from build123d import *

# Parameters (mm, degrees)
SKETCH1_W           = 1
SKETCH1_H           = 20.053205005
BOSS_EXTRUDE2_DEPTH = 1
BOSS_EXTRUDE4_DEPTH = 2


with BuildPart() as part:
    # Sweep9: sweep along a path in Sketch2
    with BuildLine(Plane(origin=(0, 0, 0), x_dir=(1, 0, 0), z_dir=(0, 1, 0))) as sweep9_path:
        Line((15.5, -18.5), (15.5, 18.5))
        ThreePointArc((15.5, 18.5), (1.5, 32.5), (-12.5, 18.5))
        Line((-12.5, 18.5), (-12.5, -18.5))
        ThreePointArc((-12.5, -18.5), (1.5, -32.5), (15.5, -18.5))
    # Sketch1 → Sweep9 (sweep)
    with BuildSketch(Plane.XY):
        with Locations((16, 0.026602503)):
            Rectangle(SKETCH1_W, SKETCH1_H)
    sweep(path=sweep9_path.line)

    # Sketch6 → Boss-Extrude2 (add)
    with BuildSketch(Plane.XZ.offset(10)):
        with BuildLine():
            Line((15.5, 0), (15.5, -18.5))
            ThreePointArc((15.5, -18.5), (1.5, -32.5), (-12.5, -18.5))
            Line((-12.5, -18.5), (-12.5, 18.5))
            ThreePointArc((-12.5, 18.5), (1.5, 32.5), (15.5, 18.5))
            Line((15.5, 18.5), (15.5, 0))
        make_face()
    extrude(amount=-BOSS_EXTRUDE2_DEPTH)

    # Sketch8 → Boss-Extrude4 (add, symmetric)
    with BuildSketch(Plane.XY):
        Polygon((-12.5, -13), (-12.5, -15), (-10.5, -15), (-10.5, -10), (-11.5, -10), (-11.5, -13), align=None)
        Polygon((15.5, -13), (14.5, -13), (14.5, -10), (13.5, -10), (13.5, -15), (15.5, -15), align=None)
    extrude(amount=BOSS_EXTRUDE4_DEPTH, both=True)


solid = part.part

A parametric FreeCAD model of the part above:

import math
import FreeCAD as App
import Part
import Sketcher
Q = App.Units.Quantity

doc = App.newDocument("Part")
params = doc.addObject("Spreadsheet::Sheet", "Params")
for row, (alias, value) in enumerate([
    ("sketch1_width", "1 mm"),
    ("sketch2_radius", "14 mm"),
    ("sketch2_height", "37 mm"),
    ("sketch3_radius", "14 mm"),
    ("sketch3_height", "37 mm"),
    ("pad1_length", "1 mm"),
    ("sketch4_width", "2 mm"),
    ("sketch4_height", "5 mm"),
    ("pad2_length", "4 mm"),
], start=1):
    params.set(f"A{row}", alias)
    params.set(f"B{row}", "=" + value)
    params.setAlias(f"B{row}", alias)

body = doc.addObject("PartDesign::Body", "Body")

sketch1 = body.newObject("Sketcher::SketchObject", "Sketch")
sketch1.AttachmentSupport = (doc.getObject("XY_Plane"), [""])
sketch1.MapMode = "FlatFace"
sketch1.addGeometry(Part.LineSegment(App.Vector(15.5, 10.1, 0), App.Vector(15.5, -10, 0)), False)
sketch1.addGeometry(Part.LineSegment(App.Vector(15.5, -10, 0), App.Vector(16.5, -10, 0)), False)
sketch1.addGeometry(Part.LineSegment(App.Vector(16.5, -10, 0), App.Vector(16.5, 10.1, 0)), False)
sketch1.addGeometry(Part.LineSegment(App.Vector(16.5, 10.1, 0), App.Vector(15.5, 10.1, 0)), False)
sketch1.addConstraint(Sketcher.Constraint("Coincident", 0, 2, 1, 1))
sketch1.addConstraint(Sketcher.Constraint("Coincident", 1, 2, 2, 1))
sketch1.addConstraint(Sketcher.Constraint("Coincident", 2, 2, 3, 1))
sketch1.addConstraint(Sketcher.Constraint("Coincident", 3, 2, 0, 1))
sketch1.addConstraint(Sketcher.Constraint("Vertical", 0))
sketch1.addConstraint(Sketcher.Constraint("Horizontal", 1))
sketch1.addConstraint(Sketcher.Constraint("Vertical", 2))
sketch1.addConstraint(Sketcher.Constraint("Horizontal", 3))
sketch1.addConstraint(Sketcher.Constraint("DistanceX", 1, 1, 1, 2, Q("1 mm")))
sketch1.addConstraint(Sketcher.Constraint("DistanceY", 0, 2, -1, 1, Q("10 mm")))
sketch1.addConstraint(Sketcher.Constraint("DistanceX", -1, 1, 0, 2, Q("15.5 mm")))
sketch1.addConstraint(Sketcher.Constraint("DistanceY", 0, 2, 0, 1, Q("20.053205 mm")))
sketch1.setExpression("Constraints[8]", "Params.sketch1_width")

sketch2 = body.newObject("Sketcher::SketchObject", "Sketch001")
sketch2.AttachmentSupport = (doc.getObject("XZ_Plane"), [""])
sketch2.MapMode = "FlatFace"
sketch2.addGeometry(Part.LineSegment(App.Vector(16, 18, 0), App.Vector(16, -18, 0)), False)
sketch2.addGeometry(Part.ArcOfCircle(Part.Circle(App.Vector(2, -18, 0), App.Vector(0, 0, 1), 14), math.radians(180), math.radians(360)), False)
sketch2.addGeometry(Part.LineSegment(App.Vector(-12, -18, 0), App.Vector(-12, 18, 0)), False)
sketch2.addGeometry(Part.ArcOfCircle(Part.Circle(App.Vector(2, 18, 0), App.Vector(0, 0, 1), 14), math.radians(0), math.radians(180)), False)
sketch2.addConstraint(Sketcher.Constraint("Tangent", 0, 2, 1, 2))
sketch2.addConstraint(Sketcher.Constraint("Tangent", 1, 1, 2, 1))
sketch2.addConstraint(Sketcher.Constraint("Tangent", 2, 2, 3, 2))
sketch2.addConstraint(Sketcher.Constraint("Tangent", 3, 1, 0, 1))
sketch2.addConstraint(Sketcher.Constraint("Vertical", 0))
sketch2.addConstraint(Sketcher.Constraint("Vertical", 2))
sketch2.addConstraint(Sketcher.Constraint("Radius", 1, Q("14 mm")))
sketch2.addConstraint(Sketcher.Constraint("DistanceY", 0, 2, 0, 1, Q("37 mm")))
sketch2.addConstraint(Sketcher.Constraint("DistanceX", -1, 1, 1, 3, Q("1.5 mm")))
sketch2.addConstraint(Sketcher.Constraint("DistanceY", 1, 3, -1, 1, Q("18.5 mm")))
sketch2.setExpression("Constraints[6]", "Params.sketch2_radius")
sketch2.setExpression("Constraints[7]", "Params.sketch2_height")
doc.recompute()

additivepipe = body.newObject("PartDesign::AdditivePipe", "AdditivePipe")
additivepipe.Profile = sketch1
additivepipe.Spine = (sketch2, ["Edge1", "Edge2", "Edge3", "Edge4"])

sketch3 = body.newObject("Sketcher::SketchObject", "Sketch002")
sketch3.AttachmentSupport = (doc.getObject("XZ_Plane"), [""])
sketch3.MapMode = "FlatFace"
sketch3.AttachmentOffset = App.Placement(App.Vector(0, 0, 10), App.Rotation())
sketch3.addGeometry(Part.ArcOfCircle(Part.Circle(App.Vector(2, -18, 0), App.Vector(0, 0, 1), 14), math.radians(180), math.radians(360)), False)
sketch3.addGeometry(Part.LineSegment(App.Vector(16, -18, 0), App.Vector(16, 18, 0)), False)
sketch3.addGeometry(Part.ArcOfCircle(Part.Circle(App.Vector(2, 18, 0), App.Vector(0, 0, 1), 14), math.radians(0), math.radians(180)), False)
sketch3.addGeometry(Part.LineSegment(App.Vector(-12, 18, 0), App.Vector(-12, -18, 0)), False)
sketch3.addConstraint(Sketcher.Constraint("Tangent", 0, 2, 1, 1))
sketch3.addConstraint(Sketcher.Constraint("Tangent", 1, 2, 2, 1))
sketch3.addConstraint(Sketcher.Constraint("Tangent", 2, 2, 3, 1))
sketch3.addConstraint(Sketcher.Constraint("Tangent", 3, 2, 0, 1))
sketch3.addConstraint(Sketcher.Constraint("Vertical", 1))
sketch3.addConstraint(Sketcher.Constraint("Vertical", 3))
sketch3.addConstraint(Sketcher.Constraint("Radius", 0, Q("14 mm")))
sketch3.addConstraint(Sketcher.Constraint("DistanceY", 1, 1, 1, 2, Q("37 mm")))
sketch3.addConstraint(Sketcher.Constraint("DistanceX", -1, 1, 0, 3, Q("1.5 mm")))
sketch3.addConstraint(Sketcher.Constraint("DistanceY", 0, 3, -1, 1, Q("18.5 mm")))
sketch3.setExpression("Constraints[6]", "Params.sketch3_radius")
sketch3.setExpression("Constraints[7]", "Params.sketch3_height")
pad1 = body.newObject("PartDesign::Pad", "Pad")
pad1.Profile = sketch3
pad1.setExpression("Length", "Params.pad1_length")
pad1.Reversed = True

sketch4 = body.newObject("Sketcher::SketchObject", "Sketch003")
sketch4.AttachmentSupport = (doc.getObject("XY_Plane"), [""])
sketch4.MapMode = "FlatFace"
sketch4.addGeometry(Part.LineSegment(App.Vector(-12.5, -13, 0), App.Vector(-12.5, -15, 0)), False)
sketch4.addGeometry(Part.LineSegment(App.Vector(-12.5, -15, 0), App.Vector(-10.5, -15, 0)), False)
sketch4.addGeometry(Part.LineSegment(App.Vector(-10.5, -15, 0), App.Vector(-10.5, -10, 0)), False)
sketch4.addGeometry(Part.LineSegment(App.Vector(-10.5, -10, 0), App.Vector(-11.5, -10, 0)), False)
sketch4.addGeometry(Part.LineSegment(App.Vector(-11.5, -10, 0), App.Vector(-11.5, -13, 0)), False)
sketch4.addGeometry(Part.LineSegment(App.Vector(-11.5, -13, 0), App.Vector(-12.5, -13, 0)), False)
sketch4.addGeometry(Part.LineSegment(App.Vector(15.5, -13, 0), App.Vector(14.5, -13, 0)), False)
sketch4.addGeometry(Part.LineSegment(App.Vector(14.5, -13, 0), App.Vector(14.5, -10, 0)), False)
sketch4.addGeometry(Part.LineSegment(App.Vector(14.5, -10, 0), App.Vector(13.5, -10, 0)), False)
sketch4.addGeometry(Part.LineSegment(App.Vector(13.5, -10, 0), App.Vector(13.5, -15, 0)), False)
sketch4.addGeometry(Part.LineSegment(App.Vector(13.5, -15, 0), App.Vector(15.5, -15, 0)), False)
sketch4.addGeometry(Part.LineSegment(App.Vector(15.5, -15, 0), App.Vector(15.5, -13, 0)), False)
sketch4.addConstraint(Sketcher.Constraint("Coincident", 0, 2, 1, 1))
sketch4.addConstraint(Sketcher.Constraint("Coincident", 1, 2, 2, 1))
sketch4.addConstraint(Sketcher.Constraint("Coincident", 2, 2, 3, 1))
sketch4.addConstraint(Sketcher.Constraint("Coincident", 3, 2, 4, 1))
sketch4.addConstraint(Sketcher.Constraint("Coincident", 4, 2, 5, 1))
sketch4.addConstraint(Sketcher.Constraint("Coincident", 5, 2, 0, 1))
sketch4.addConstraint(Sketcher.Constraint("Coincident", 6, 2, 7, 1))
sketch4.addConstraint(Sketcher.Constraint("Coincident", 7, 2, 8, 1))
sketch4.addConstraint(Sketcher.Constraint("Coincident", 8, 2, 9, 1))
sketch4.addConstraint(Sketcher.Constraint("Coincident", 9, 2, 10, 1))
sketch4.addConstraint(Sketcher.Constraint("Coincident", 10, 2, 11, 1))
sketch4.addConstraint(Sketcher.Constraint("Coincident", 11, 2, 6, 1))
sketch4.addConstraint(Sketcher.Constraint("Vertical", 0))
sketch4.addConstraint(Sketcher.Constraint("Horizontal", 1))
sketch4.addConstraint(Sketcher.Constraint("Vertical", 2))
sketch4.addConstraint(Sketcher.Constraint("Horizontal", 3))
sketch4.addConstraint(Sketcher.Constraint("Vertical", 4))
sketch4.addConstraint(Sketcher.Constraint("Horizontal", 5))
sketch4.addConstraint(Sketcher.Constraint("Horizontal", 6))
sketch4.addConstraint(Sketcher.Constraint("Vertical", 7))
sketch4.addConstraint(Sketcher.Constraint("Horizontal", 8))
sketch4.addConstraint(Sketcher.Constraint("Vertical", 9))
sketch4.addConstraint(Sketcher.Constraint("Horizontal", 10))
sketch4.addConstraint(Sketcher.Constraint("Vertical", 11))
sketch4.addConstraint(Sketcher.Constraint("Horizontal", 5, 2, 6, 2))
sketch4.addConstraint(Sketcher.Constraint("Horizontal", 3, 2, 7, 2))
sketch4.addConstraint(Sketcher.Constraint("Horizontal", 1, 2, 9, 2))
sketch4.addConstraint(Sketcher.Constraint("Equal", 3, 5))
sketch4.addConstraint(Sketcher.Constraint("Equal", 5, 6))
sketch4.addConstraint(Sketcher.Constraint("Equal", 6, 8))
sketch4.addConstraint(Sketcher.Constraint("Equal", 10, 0))
sketch4.addConstraint(Sketcher.Constraint("DistanceX", 1, 1, 1, 2, Q("2 mm")))
sketch4.addConstraint(Sketcher.Constraint("DistanceY", 2, 1, 2, 2, Q("5 mm")))
sketch4.addConstraint(Sketcher.Constraint("DistanceY", 0, 2, -1, 1, Q("15 mm")))
sketch4.addConstraint(Sketcher.Constraint("DistanceX", 1, 2, 6, 2, Q("25 mm")))
sketch4.addConstraint(Sketcher.Constraint("DistanceX", 0, 2, -1, 1, Q("12.5 mm")))
sketch4.setExpression("Constraints[31]", "Params.sketch4_width")
sketch4.setExpression("Constraints[32]", "Params.sketch4_height")
pad2 = body.newObject("PartDesign::Pad", "Pad001")
pad2.Profile = sketch4
pad2.setExpression("Length", "Params.pad2_length")
pad2.Midplane = True

doc.recompute()
